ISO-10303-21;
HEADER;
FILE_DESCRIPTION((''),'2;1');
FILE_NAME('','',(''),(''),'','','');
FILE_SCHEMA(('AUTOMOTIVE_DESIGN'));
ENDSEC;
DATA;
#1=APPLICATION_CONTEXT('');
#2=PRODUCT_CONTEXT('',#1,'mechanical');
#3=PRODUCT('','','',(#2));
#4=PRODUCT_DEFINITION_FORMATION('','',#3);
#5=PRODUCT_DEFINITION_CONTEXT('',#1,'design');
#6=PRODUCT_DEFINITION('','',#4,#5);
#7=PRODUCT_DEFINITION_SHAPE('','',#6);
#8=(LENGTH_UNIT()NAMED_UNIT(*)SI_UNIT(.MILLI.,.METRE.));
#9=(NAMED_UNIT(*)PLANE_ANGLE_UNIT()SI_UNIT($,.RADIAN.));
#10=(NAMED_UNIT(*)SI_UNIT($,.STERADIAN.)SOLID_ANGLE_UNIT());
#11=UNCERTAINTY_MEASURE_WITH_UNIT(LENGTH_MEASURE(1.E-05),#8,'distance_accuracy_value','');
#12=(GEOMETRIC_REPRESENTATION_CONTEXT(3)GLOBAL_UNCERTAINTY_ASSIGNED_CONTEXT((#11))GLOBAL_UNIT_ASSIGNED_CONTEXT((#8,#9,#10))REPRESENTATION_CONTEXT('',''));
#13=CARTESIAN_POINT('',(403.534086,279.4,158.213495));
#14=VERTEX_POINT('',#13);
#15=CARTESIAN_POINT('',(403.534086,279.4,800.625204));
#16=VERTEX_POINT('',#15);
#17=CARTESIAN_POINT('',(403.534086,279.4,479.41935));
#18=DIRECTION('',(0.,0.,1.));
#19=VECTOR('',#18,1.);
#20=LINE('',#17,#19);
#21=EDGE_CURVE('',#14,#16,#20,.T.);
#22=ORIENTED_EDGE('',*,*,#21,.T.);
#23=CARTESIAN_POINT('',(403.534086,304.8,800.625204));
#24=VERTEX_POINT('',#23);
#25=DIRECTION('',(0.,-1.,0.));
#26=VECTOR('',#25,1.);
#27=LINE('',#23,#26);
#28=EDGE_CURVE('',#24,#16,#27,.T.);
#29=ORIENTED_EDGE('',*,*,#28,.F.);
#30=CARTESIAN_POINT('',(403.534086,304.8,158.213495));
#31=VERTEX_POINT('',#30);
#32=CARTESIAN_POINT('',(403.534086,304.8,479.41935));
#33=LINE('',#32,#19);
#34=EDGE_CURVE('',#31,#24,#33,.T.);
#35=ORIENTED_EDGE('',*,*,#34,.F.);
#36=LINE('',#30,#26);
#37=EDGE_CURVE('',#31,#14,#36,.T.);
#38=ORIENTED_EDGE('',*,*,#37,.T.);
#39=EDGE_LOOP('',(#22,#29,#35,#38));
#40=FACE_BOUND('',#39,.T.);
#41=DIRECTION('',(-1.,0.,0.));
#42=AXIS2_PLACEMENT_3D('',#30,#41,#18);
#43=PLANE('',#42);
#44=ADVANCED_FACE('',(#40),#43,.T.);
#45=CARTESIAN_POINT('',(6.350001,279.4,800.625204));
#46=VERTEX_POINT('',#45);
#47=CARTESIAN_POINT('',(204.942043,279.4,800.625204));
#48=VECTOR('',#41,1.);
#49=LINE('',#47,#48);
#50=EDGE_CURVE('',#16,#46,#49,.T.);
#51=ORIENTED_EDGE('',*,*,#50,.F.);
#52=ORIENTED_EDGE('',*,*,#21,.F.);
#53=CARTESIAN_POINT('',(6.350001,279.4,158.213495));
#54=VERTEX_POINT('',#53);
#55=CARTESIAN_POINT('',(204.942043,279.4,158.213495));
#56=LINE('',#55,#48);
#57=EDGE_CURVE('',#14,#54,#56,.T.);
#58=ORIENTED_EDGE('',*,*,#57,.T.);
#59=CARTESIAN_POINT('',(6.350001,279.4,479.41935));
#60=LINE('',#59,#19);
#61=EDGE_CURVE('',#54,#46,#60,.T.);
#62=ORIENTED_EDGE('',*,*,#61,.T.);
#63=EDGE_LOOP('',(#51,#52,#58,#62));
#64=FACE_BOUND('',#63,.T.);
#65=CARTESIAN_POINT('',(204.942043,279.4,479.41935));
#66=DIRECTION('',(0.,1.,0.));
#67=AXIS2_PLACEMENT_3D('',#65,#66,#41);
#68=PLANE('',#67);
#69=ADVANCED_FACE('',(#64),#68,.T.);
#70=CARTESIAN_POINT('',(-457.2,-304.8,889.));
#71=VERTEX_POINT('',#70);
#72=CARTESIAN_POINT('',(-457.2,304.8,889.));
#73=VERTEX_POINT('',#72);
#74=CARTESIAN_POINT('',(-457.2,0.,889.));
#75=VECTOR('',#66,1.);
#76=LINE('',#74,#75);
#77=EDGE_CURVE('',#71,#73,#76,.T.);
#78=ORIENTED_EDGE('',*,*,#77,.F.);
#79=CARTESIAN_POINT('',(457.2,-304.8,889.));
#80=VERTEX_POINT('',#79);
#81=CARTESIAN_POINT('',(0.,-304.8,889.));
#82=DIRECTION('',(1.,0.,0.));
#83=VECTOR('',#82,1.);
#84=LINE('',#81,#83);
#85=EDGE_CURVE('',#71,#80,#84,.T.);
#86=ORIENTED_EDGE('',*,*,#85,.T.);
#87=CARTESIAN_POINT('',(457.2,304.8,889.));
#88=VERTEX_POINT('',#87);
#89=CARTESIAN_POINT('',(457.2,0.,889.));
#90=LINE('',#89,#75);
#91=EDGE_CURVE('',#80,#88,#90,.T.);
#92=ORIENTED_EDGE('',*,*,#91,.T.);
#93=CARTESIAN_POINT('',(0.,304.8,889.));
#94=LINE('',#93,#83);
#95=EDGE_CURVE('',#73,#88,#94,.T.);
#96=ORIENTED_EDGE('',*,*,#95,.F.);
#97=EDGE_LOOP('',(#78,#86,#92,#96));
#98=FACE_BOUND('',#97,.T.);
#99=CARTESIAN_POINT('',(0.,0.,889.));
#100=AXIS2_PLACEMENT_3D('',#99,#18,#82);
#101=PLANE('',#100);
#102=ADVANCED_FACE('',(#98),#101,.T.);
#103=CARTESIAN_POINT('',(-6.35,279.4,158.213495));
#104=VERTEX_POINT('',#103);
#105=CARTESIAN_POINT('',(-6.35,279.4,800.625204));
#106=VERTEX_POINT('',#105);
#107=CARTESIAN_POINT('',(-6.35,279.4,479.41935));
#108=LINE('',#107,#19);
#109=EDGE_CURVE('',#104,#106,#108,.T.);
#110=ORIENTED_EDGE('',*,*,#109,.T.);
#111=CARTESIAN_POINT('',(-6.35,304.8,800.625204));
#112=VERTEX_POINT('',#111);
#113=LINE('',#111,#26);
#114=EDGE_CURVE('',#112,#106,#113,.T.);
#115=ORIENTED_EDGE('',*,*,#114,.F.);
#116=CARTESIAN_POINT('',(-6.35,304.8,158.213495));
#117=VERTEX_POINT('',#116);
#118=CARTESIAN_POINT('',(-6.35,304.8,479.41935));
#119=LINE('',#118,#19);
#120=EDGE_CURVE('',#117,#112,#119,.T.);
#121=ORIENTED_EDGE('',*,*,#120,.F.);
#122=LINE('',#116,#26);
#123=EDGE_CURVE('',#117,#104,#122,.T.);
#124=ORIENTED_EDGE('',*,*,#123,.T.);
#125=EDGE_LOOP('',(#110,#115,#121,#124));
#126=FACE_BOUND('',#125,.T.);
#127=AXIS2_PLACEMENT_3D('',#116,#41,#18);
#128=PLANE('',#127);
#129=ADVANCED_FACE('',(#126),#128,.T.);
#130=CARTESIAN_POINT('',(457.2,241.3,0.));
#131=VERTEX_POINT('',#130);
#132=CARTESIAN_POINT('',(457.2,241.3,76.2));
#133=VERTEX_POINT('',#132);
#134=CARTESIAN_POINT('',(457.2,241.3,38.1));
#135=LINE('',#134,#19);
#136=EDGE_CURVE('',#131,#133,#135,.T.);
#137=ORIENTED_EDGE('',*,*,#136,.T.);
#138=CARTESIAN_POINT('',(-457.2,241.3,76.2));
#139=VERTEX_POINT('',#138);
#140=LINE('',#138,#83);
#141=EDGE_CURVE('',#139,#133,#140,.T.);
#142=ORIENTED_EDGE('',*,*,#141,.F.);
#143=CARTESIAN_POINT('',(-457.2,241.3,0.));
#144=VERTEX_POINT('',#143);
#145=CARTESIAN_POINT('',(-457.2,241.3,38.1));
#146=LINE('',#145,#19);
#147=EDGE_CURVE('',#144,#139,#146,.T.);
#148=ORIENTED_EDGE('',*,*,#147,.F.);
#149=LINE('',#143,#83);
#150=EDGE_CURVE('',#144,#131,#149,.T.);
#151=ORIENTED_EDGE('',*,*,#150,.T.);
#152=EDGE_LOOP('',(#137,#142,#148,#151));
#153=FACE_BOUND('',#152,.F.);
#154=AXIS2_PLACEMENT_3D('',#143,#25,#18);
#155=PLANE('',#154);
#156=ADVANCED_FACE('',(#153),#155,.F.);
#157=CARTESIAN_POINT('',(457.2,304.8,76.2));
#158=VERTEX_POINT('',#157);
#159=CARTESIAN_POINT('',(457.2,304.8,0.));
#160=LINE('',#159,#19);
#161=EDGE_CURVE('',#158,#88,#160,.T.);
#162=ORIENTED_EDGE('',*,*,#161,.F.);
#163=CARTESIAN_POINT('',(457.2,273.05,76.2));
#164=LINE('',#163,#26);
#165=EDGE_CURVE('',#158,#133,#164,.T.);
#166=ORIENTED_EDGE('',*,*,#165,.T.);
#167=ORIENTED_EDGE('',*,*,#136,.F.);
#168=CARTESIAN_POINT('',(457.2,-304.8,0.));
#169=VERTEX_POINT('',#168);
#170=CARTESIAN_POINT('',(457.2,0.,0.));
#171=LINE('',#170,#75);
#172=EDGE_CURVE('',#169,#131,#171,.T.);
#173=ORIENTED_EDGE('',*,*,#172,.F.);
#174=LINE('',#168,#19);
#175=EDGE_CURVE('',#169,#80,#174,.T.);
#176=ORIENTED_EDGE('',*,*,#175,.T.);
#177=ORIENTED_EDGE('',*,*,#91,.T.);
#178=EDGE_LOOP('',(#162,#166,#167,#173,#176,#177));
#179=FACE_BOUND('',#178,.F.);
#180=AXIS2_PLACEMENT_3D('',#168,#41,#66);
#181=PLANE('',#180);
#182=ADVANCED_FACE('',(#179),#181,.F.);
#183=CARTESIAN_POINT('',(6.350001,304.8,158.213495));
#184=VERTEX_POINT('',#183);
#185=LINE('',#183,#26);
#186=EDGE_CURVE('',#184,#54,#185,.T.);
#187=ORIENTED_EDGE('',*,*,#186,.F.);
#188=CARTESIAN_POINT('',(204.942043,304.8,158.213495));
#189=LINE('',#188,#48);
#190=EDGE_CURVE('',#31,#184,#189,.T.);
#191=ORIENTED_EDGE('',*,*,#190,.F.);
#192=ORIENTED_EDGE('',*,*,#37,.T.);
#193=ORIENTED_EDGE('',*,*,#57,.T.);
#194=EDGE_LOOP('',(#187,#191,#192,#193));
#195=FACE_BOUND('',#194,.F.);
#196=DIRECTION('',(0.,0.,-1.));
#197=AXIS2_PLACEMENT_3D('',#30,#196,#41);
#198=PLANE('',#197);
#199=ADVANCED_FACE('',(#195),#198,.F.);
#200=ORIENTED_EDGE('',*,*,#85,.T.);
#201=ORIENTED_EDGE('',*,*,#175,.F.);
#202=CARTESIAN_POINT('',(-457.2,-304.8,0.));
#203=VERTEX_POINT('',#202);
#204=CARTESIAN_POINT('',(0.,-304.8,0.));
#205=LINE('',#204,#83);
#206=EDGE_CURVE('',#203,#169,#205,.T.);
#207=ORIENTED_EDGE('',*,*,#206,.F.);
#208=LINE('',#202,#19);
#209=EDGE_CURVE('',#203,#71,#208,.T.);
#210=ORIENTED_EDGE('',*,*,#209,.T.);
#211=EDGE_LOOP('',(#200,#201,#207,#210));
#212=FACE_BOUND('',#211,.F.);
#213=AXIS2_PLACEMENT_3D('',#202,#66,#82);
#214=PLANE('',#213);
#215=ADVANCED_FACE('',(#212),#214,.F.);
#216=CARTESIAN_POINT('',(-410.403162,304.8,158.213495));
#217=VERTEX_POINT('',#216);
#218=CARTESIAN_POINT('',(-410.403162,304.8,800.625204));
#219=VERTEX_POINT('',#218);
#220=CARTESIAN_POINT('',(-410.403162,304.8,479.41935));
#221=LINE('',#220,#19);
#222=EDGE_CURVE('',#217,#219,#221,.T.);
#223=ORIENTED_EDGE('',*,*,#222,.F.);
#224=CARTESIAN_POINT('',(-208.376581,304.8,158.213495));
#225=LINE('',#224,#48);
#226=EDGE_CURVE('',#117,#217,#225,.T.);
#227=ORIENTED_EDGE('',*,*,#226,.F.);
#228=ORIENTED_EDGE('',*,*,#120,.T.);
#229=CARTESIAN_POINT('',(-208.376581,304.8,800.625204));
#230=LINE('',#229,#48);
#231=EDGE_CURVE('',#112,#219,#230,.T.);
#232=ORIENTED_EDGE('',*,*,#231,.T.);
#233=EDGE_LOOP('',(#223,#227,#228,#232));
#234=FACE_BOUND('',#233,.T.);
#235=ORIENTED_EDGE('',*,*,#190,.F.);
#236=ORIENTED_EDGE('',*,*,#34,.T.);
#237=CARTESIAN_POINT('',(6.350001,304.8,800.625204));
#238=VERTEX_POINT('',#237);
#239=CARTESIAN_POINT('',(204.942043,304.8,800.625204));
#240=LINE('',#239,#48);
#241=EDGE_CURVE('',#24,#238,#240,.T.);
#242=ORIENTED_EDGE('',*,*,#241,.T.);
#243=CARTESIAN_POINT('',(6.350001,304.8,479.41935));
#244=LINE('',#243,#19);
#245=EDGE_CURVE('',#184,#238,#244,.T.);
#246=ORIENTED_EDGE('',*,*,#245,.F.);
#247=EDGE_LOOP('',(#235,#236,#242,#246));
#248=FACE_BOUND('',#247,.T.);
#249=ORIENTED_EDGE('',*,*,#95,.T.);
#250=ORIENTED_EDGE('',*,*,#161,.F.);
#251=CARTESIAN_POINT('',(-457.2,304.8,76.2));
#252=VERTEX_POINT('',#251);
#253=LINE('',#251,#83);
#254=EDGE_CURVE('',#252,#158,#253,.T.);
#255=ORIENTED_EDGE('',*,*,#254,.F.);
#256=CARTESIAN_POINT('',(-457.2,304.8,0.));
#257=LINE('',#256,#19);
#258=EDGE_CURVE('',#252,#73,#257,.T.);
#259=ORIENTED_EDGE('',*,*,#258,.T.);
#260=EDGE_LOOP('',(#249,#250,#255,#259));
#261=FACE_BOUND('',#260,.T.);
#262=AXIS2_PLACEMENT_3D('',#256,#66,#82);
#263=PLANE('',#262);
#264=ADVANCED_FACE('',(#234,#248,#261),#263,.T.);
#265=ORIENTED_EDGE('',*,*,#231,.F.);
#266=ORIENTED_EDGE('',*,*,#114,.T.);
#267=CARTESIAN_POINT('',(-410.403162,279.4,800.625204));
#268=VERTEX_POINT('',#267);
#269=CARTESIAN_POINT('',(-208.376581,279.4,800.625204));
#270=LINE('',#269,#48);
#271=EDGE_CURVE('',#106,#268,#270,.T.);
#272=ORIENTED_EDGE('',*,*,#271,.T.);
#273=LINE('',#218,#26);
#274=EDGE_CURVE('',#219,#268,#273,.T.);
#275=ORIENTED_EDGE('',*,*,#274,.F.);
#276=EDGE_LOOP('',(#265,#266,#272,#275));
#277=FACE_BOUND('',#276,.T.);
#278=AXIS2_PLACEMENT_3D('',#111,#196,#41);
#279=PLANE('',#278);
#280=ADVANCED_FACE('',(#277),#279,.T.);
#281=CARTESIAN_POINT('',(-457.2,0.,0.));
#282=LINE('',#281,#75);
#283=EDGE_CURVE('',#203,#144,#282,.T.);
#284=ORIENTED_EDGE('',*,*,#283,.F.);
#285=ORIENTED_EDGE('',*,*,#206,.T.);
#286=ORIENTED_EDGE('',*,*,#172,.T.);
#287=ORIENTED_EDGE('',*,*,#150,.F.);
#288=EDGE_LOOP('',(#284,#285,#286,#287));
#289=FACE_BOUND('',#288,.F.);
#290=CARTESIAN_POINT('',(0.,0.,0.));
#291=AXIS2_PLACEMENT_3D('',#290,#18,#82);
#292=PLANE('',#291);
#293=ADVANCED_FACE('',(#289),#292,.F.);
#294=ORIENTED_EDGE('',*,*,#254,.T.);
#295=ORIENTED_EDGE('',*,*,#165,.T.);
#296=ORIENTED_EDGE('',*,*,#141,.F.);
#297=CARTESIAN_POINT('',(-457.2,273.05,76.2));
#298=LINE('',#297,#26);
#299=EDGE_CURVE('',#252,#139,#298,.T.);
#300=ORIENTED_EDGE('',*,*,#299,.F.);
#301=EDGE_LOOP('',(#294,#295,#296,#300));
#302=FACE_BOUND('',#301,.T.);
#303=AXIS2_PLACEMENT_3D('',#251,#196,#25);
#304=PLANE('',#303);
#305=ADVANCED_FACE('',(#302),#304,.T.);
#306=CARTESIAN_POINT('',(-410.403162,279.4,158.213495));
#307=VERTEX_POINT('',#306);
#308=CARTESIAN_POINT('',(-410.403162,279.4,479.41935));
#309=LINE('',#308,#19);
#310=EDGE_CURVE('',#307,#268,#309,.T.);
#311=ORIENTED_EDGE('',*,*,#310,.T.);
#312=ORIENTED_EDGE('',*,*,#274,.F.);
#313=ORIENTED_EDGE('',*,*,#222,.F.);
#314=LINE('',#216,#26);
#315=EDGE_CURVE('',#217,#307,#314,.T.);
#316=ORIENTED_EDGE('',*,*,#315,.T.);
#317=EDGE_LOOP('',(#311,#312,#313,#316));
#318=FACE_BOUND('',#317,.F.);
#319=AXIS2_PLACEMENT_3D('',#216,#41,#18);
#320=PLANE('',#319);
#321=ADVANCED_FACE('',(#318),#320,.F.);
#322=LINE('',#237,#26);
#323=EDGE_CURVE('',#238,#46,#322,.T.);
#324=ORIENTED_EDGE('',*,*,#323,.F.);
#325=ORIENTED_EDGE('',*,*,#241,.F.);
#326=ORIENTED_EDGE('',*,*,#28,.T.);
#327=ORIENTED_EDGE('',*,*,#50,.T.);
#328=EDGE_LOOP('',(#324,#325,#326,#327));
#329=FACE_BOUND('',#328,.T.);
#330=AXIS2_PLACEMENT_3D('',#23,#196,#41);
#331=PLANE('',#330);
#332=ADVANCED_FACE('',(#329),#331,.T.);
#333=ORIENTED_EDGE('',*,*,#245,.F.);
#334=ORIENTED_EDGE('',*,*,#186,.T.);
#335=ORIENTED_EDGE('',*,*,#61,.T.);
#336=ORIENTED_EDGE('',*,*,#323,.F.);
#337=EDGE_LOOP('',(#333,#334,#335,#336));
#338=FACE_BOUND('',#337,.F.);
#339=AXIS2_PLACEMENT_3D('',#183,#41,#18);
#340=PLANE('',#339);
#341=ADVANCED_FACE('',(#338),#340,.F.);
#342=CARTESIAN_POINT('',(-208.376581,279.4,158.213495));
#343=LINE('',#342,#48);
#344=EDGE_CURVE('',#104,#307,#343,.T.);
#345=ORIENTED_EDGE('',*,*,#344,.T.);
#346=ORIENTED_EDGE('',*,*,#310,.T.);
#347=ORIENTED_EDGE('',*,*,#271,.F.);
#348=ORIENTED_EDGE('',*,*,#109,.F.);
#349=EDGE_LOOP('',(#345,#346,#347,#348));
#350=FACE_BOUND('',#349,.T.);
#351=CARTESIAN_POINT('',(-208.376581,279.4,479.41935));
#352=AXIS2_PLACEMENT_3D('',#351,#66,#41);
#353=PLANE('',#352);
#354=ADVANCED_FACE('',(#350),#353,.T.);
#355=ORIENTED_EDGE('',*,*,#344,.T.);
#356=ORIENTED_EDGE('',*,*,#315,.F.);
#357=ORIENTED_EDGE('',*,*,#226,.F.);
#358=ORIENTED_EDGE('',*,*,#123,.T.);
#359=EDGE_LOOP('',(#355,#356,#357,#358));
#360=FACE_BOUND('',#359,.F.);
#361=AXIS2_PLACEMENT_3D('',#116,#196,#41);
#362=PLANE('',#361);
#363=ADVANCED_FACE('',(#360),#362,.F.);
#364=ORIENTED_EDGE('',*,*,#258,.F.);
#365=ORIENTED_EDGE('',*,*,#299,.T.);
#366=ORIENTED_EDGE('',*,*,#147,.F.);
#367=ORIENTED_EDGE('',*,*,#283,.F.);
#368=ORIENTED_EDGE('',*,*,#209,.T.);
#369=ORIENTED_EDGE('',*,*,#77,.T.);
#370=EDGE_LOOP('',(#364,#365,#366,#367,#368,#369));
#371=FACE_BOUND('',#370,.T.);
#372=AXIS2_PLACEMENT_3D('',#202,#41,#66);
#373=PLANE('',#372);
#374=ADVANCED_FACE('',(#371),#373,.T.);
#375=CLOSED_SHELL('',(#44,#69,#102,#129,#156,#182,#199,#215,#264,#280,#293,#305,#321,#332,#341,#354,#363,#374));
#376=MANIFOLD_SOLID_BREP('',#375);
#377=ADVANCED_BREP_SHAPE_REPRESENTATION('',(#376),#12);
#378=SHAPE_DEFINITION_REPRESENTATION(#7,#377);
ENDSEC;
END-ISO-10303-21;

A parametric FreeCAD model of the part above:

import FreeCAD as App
import Part
import Sketcher

V = App.Vector
Q = App.Units.Quantity

doc = App.newDocument("Part")
body = doc.addObject("PartDesign::Body", "Body")

# Sketch on XY plane
sketch1 = body.newObject("Sketcher::SketchObject", "Sketch")
sketch1.AttachmentSupport = (doc.getObject("XY_Plane"), [""])
sketch1.MapMode = "FlatFace"
sketch1.addGeometry(Part.LineSegment(V(-457, 305, 0), V(-457, -305, 0)), False)
sketch1.addGeometry(Part.LineSegment(V(-457, -305, 0), V(457, -305, 0)), False)
sketch1.addGeometry(Part.LineSegment(V(457, -305, 0), V(457, 305, 0)), False)
sketch1.addGeometry(Part.LineSegment(V(457, 305, 0), V(-457, 305, 0)), False)
sketch1.addConstraint(Sketcher.Constraint("Coincident", 0, 2, 1, 1))
sketch1.addConstraint(Sketcher.Constraint("Coincident", 1, 2, 2, 1))
sketch1.addConstraint(Sketcher.Constraint("Coincident", 2, 2, 3, 1))
sketch1.addConstraint(Sketcher.Constraint("Coincident", 3, 2, 0, 1))
sketch1.addConstraint(Sketcher.Constraint("Vertical", 0))
sketch1.addConstraint(Sketcher.Constraint("Horizontal", 1))
sketch1.addConstraint(Sketcher.Constraint("Vertical", 2))
sketch1.addConstraint(Sketcher.Constraint("Horizontal", 3))
sketch1.addConstraint(Sketcher.Constraint("Symmetric", 0, 2, 2, 2, -1, 1))
sketch1.addConstraint(Sketcher.Constraint("DistanceX", 1, 1, 1, 2, Q("36 in")))
sketch1.addConstraint(Sketcher.Constraint("DistanceY", 0, 2, 0, 1, Q("24 in")))
pad1 = body.newObject("PartDesign::Pad", "Pad")
pad1.Profile = sketch1
pad1.Length = Q("35 in")

# Sketch on YZ plane
sketch2 = body.newObject("Sketcher::SketchObject", "Sketch001")
sketch2.AttachmentSupport = (doc.getObject("YZ_Plane"), [""])
sketch2.MapMode = "FlatFace"
sketch2.AttachmentOffset = App.Placement(V(0, 0, -18 * 25.4), App.Rotation())
sketch2.addGeometry(Part.LineSegment(V(305, 76, 0), V(305, 0, 0)), False)
sketch2.addGeometry(Part.LineSegment(V(305, 0, 0), V(241, 0, 0)), False)
sketch2.addGeometry(Part.LineSegment(V(241, 0, 0), V(241, 76, 0)), False)
sketch2.addGeometry(Part.LineSegment(V(241, 76, 0), V(305, 76, 0)), False)
sketch2.addConstraint(Sketcher.Constraint("Coincident", 0, 2, 1, 1))
sketch2.addConstraint(Sketcher.Constraint("Coincident", 1, 2, 2, 1))
sketch2.addConstraint(Sketcher.Constraint("Coincident", 2, 2, 3, 1))
sketch2.addConstraint(Sketcher.Constraint("Coincident", 3, 2, 0, 1))
sketch2.addConstraint(Sketcher.Constraint("Vertical", 0))
sketch2.addConstraint(Sketcher.Constraint("Horizontal", 1))
sketch2.addConstraint(Sketcher.Constraint("Vertical", 2))
sketch2.addConstraint(Sketcher.Constraint("Horizontal", 3))
sketch2.addConstraint(Sketcher.Constraint("PointOnObject", 0, 2, -1))
sketch2.addConstraint(Sketcher.Constraint("DistanceY", 0, 2, 0, 1, Q("3 in")))
sketch2.addConstraint(Sketcher.Constraint("DistanceX", 1, 2, 1, 1, Q("2.5 in")))
sketch2.addConstraint(Sketcher.Constraint("DistanceX", -1, 1, 0, 2, Q("12 in")))
pocket1 = body.newObject("PartDesign::Pocket", "Pocket")
pocket1.Profile = sketch2
pocket1.Length = Q("36 in")
pocket1.Reversed = True

# Sketch on XZ plane
sketch3 = body.newObject("Sketcher::SketchObject", "Sketch002")
sketch3.AttachmentSupport = (doc.getObject("XZ_Plane"), [""])
sketch3.MapMode = "FlatFace"
sketch3.AttachmentOffset = App.Placement(V(0, 0, -12 * 25.4), App.Rotation())
sketch3.addGeometry(Part.LineSegment(V(404, 801, 0), V(404, 158, 0)), False)
sketch3.addGeometry(Part.LineSegment(V(404, 158, 0), V(6, 158, 0)), False)
sketch3.addGeometry(Part.LineSegment(V(6, 158, 0), V(6, 801, 0)), False)
sketch3.addGeometry(Part.LineSegment(V(6, 801, 0), V(404, 801, 0)), False)
sketch3.addGeometry(Part.LineSegment(V(-6, 801, 0), V(-6, 158, 0)), False)
sketch3.addGeometry(Part.LineSegment(V(-6, 158, 0), V(-410, 158, 0)), False)
sketch3.addGeometry(Part.LineSegment(V(-410, 158, 0), V(-410, 801, 0)), False)
sketch3.addGeometry(Part.LineSegment(V(-410, 801, 0), V(-6, 801, 0)), False)
sketch3.addConstraint(Sketcher.Constraint("Coincident", 0, 2, 1, 1))
sketch3.addConstraint(Sketcher.Constraint("Coincident", 1, 2, 2, 1))
sketch3.addConstraint(Sketcher.Constraint("Coincident", 2, 2, 3, 1))
sketch3.addConstraint(Sketcher.Constraint("Coincident", 3, 2, 0, 1))
sketch3.addConstraint(Sketcher.Constraint("Coincident", 4, 2, 5, 1))
sketch3.addConstraint(Sketcher.Constraint("Coincident", 5, 2, 6, 1))
sketch3.addConstraint(Sketcher.Constraint("Coincident", 6, 2, 7, 1))
sketch3.addConstraint(Sketcher.Constraint("Coincident", 7, 2, 4, 1))
sketch3.addConstraint(Sketcher.Constraint("Vertical", 0))
sketch3.addConstraint(Sketcher.Constraint("Horizontal", 1))
sketch3.addConstraint(Sketcher.Constraint("Vertical", 2))
sketch3.addConstraint(Sketcher.Constraint("Horizontal", 3))
sketch3.addConstraint(Sketcher.Constraint("Vertical", 4))
sketch3.addConstraint(Sketcher.Constraint("Horizontal", 5))
sketch3.addConstraint(Sketcher.Constraint("Vertical", 6))
sketch3.addConstraint(Sketcher.Constraint("Horizontal", 7))
sketch3.addConstraint(Sketcher.Constraint("Symmetric", 1, 2, 4, 2, -2))
sketch3.addConstraint(Sketcher.Constraint("Horizontal", 3, 2, 6, 2))
sketch3.addConstraint(Sketcher.Constraint("DistanceX", 4, 2, 1, 2, Q("0.5 in")))
sketch3.addConstraint(Sketcher.Constraint("DistanceX", 5, 2, 5, 1, Q("404.053162 mm")))
sketch3.addConstraint(Sketcher.Constraint("DistanceY", 0, 2, 0, 1, Q("642.411709 mm")))
sketch3.addConstraint(Sketcher.Constraint("DistanceX", 1, 2, 1, 1, Q("397.184085 mm")))
sketch3.addConstraint(Sketcher.Constraint("DistanceY", -1, 1, 0, 2, Q("158.213495 mm")))
pocket2 = body.newObject("PartDesign::Pocket", "Pocket001")
pocket2.Profile = sketch3
pocket2.Length = Q("1 in")
pocket2.Reversed = True

doc.recompute()
